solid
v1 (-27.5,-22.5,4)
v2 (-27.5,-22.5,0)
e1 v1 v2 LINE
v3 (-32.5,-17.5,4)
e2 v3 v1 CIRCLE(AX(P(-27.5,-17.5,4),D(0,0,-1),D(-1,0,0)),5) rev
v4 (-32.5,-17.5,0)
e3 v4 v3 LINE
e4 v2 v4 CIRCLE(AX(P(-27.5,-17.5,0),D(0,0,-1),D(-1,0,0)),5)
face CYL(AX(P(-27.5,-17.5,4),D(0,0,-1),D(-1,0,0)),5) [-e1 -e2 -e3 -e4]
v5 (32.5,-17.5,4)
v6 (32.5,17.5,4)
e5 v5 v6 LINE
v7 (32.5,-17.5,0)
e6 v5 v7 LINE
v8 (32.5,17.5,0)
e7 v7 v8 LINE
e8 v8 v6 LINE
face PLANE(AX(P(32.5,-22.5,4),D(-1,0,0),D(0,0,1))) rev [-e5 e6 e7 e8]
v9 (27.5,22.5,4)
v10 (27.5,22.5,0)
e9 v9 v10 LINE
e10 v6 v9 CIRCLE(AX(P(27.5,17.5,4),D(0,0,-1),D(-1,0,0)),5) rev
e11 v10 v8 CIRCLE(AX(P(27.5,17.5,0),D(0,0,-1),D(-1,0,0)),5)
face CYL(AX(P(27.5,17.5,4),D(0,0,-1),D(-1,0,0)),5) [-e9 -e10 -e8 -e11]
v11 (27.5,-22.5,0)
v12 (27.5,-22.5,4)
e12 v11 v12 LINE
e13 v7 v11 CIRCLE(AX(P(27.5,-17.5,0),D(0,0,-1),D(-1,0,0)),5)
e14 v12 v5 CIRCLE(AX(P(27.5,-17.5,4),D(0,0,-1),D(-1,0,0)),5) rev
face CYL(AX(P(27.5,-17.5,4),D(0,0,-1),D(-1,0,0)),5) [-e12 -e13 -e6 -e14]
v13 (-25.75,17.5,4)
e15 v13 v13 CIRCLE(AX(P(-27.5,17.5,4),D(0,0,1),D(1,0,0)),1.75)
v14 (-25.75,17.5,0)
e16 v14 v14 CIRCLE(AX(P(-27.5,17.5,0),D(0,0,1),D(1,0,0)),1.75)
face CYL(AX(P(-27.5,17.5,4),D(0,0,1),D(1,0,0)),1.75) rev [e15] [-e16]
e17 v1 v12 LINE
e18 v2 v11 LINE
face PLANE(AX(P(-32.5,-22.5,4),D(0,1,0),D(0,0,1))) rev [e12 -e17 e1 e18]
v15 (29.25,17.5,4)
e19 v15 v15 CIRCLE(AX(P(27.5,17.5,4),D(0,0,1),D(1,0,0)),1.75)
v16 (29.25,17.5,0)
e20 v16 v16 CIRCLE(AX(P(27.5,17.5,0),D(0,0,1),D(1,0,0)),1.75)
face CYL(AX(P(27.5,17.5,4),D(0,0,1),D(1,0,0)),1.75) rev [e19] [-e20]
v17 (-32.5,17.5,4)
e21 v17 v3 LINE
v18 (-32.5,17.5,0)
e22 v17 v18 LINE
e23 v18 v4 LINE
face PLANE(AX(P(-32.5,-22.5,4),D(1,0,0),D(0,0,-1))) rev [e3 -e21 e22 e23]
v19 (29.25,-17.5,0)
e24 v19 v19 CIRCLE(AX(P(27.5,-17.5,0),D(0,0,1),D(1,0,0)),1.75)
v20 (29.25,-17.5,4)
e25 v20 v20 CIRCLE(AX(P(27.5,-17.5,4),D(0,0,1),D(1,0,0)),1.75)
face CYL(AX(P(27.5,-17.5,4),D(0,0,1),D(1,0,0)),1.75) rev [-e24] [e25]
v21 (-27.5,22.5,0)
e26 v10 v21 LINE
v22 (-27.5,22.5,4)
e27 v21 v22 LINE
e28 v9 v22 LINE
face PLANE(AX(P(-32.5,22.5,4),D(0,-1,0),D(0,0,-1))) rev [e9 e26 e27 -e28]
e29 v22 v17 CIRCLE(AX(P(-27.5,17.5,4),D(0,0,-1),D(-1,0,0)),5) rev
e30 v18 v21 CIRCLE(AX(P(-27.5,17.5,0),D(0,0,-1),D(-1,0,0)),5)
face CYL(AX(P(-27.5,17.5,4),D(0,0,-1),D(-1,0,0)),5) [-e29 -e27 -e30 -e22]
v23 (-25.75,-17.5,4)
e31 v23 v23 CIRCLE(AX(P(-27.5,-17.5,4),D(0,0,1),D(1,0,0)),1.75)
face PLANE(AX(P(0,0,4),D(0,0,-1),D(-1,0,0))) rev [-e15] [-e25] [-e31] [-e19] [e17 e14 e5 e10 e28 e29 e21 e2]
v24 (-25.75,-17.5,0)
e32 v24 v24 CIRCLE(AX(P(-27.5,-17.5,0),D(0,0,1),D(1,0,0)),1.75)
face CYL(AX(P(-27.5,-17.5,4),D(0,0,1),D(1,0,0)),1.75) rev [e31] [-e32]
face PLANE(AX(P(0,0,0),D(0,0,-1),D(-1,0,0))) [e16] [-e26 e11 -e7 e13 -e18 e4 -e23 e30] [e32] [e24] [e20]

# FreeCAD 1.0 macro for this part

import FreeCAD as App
import Part
import Sketcher
from FreeCAD import Vector
Q = App.Units.Quantity


def edges_at(feature, points):
    """Names of the edges that pass closest to the given points."""
    edges = feature.Shape.Edges
    near = lambda p: min(range(len(edges)), key=lambda i: edges[i].distToShape(Part.Vertex(*p))[0])
    return sorted({f"Edge{near(p) + 1}" for p in points})


def add_polygon(sketch, points):
    """Adds a closed chain of lines whose ends are joined by coincident constraints."""
    first, n = sketch.GeometryCount, len(points)
    for a, b in zip(points, points[1:] + points[:1]):
        sketch.addGeometry(Part.LineSegment(App.Vector(*a, 0), App.Vector(*b, 0)), False)
    for i in range(n):
        sketch.addConstraint(Sketcher.Constraint("Coincident", first + i, 2, first + (i + 1) % n, 1))

doc = App.newDocument("Part")
body = doc.addObject("PartDesign::Body", "Body")

# Sketch on XY plane
sketch1 = body.newObject("Sketcher::SketchObject", "Sketch")
sketch1.AttachmentSupport = (doc.getObject("XY_Plane"), [""])
sketch1.MapMode = "FlatFace"
add_polygon(sketch1, [(-32, 22), (-32, -22), (32, -22), (32, 22)])  # lines 0-3
sketch1.addConstraint(Sketcher.Constraint("Vertical", 0))
sketch1.addConstraint(Sketcher.Constraint("Horizontal", 1))
sketch1.addConstraint(Sketcher.Constraint("Vertical", 2))
sketch1.addConstraint(Sketcher.Constraint("Horizontal", 3))
sketch1.addConstraint(Sketcher.Constraint("Symmetric", 0, 2, 2, 2, -1, 1))
sketch1.addConstraint(Sketcher.Constraint("DistanceX", 1, 1, 1, 2, Q("65 mm")))
sketch1.addConstraint(Sketcher.Constraint("DistanceY", 0, 2, 0, 1, Q("45 mm")))
pad1 = body.newObject("PartDesign::Pad", "Pad")
pad1.Profile = sketch1
pad1.Length = 4

# Sketch on XY plane
sketch2 = body.newObject("Sketcher::SketchObject", "Sketch001")
sketch2.AttachmentSupport = (doc.getObject("XY_Plane"), [""])
sketch2.MapMode = "FlatFace"
sketch2.AttachmentOffset = App.Placement(Vector(0, 0, 4), App.Rotation())
sketch2.addGeometry(Part.Circle(Vector(-27.5, 17.5, 0), Vector(0, 0, 1), 1.8), False)
sketch2.addGeometry(Part.Circle(Vector(-27.5, -17.5, 0), Vector(0, 0, 1), 1.8), False)
sketch2.addGeometry(Part.Circle(Vector(27.5, 17.5, 0), Vector(0, 0, 1), 1.8), False)
sketch2.addGeometry(Part.Circle(Vector(27.5, -17.5, 0), Vector(0, 0, 1), 1.8), False)
sketch2.addConstraint(Sketcher.Constraint("Equal", 0, 1))
sketch2.addConstraint(Sketcher.Constraint("Equal", 1, 2))
sketch2.addConstraint(Sketcher.Constraint("Equal", 2, 3))
sketch2.addConstraint(Sketcher.Constraint("Symmetric", 1, 3, 2, 3, -1, 1))
sketch2.addConstraint(Sketcher.Constraint("Symmetric", 0, 3, 3, 3, -1, 1))
sketch2.addConstraint(Sketcher.Constraint("Symmetric", 0, 3, 2, 3, -2))
sketch2.addConstraint(Sketcher.Constraint("Diameter", 0, Q("3.5 mm")))
sketch2.addConstraint(Sketcher.Constraint("DistanceY", 1, 3, 0, 3, Q("35 mm")))
sketch2.addConstraint(Sketcher.Constraint("DistanceX", 0, 3, 2, 3, Q("55 mm")))
doc.recompute()
hole = body.newObject("PartDesign::Hole", "Hole")
hole.Profile = sketch2
hole.ThreadType = "None"
hole.Diameter = 3.5
hole.DepthType = "ThroughAll"
doc.recompute()

fillet = body.newObject("PartDesign::Fillet", "Fillet")
fillet.Base = (hole, edges_at(hole, [
    (32.5, -22.5, 2),
    (-32.5, -22.5, 2),
    (-32.5, 22.5, 2),
    (32.5, 22.5, 2),
]))
fillet.Radius = 5

doc.recompute()
